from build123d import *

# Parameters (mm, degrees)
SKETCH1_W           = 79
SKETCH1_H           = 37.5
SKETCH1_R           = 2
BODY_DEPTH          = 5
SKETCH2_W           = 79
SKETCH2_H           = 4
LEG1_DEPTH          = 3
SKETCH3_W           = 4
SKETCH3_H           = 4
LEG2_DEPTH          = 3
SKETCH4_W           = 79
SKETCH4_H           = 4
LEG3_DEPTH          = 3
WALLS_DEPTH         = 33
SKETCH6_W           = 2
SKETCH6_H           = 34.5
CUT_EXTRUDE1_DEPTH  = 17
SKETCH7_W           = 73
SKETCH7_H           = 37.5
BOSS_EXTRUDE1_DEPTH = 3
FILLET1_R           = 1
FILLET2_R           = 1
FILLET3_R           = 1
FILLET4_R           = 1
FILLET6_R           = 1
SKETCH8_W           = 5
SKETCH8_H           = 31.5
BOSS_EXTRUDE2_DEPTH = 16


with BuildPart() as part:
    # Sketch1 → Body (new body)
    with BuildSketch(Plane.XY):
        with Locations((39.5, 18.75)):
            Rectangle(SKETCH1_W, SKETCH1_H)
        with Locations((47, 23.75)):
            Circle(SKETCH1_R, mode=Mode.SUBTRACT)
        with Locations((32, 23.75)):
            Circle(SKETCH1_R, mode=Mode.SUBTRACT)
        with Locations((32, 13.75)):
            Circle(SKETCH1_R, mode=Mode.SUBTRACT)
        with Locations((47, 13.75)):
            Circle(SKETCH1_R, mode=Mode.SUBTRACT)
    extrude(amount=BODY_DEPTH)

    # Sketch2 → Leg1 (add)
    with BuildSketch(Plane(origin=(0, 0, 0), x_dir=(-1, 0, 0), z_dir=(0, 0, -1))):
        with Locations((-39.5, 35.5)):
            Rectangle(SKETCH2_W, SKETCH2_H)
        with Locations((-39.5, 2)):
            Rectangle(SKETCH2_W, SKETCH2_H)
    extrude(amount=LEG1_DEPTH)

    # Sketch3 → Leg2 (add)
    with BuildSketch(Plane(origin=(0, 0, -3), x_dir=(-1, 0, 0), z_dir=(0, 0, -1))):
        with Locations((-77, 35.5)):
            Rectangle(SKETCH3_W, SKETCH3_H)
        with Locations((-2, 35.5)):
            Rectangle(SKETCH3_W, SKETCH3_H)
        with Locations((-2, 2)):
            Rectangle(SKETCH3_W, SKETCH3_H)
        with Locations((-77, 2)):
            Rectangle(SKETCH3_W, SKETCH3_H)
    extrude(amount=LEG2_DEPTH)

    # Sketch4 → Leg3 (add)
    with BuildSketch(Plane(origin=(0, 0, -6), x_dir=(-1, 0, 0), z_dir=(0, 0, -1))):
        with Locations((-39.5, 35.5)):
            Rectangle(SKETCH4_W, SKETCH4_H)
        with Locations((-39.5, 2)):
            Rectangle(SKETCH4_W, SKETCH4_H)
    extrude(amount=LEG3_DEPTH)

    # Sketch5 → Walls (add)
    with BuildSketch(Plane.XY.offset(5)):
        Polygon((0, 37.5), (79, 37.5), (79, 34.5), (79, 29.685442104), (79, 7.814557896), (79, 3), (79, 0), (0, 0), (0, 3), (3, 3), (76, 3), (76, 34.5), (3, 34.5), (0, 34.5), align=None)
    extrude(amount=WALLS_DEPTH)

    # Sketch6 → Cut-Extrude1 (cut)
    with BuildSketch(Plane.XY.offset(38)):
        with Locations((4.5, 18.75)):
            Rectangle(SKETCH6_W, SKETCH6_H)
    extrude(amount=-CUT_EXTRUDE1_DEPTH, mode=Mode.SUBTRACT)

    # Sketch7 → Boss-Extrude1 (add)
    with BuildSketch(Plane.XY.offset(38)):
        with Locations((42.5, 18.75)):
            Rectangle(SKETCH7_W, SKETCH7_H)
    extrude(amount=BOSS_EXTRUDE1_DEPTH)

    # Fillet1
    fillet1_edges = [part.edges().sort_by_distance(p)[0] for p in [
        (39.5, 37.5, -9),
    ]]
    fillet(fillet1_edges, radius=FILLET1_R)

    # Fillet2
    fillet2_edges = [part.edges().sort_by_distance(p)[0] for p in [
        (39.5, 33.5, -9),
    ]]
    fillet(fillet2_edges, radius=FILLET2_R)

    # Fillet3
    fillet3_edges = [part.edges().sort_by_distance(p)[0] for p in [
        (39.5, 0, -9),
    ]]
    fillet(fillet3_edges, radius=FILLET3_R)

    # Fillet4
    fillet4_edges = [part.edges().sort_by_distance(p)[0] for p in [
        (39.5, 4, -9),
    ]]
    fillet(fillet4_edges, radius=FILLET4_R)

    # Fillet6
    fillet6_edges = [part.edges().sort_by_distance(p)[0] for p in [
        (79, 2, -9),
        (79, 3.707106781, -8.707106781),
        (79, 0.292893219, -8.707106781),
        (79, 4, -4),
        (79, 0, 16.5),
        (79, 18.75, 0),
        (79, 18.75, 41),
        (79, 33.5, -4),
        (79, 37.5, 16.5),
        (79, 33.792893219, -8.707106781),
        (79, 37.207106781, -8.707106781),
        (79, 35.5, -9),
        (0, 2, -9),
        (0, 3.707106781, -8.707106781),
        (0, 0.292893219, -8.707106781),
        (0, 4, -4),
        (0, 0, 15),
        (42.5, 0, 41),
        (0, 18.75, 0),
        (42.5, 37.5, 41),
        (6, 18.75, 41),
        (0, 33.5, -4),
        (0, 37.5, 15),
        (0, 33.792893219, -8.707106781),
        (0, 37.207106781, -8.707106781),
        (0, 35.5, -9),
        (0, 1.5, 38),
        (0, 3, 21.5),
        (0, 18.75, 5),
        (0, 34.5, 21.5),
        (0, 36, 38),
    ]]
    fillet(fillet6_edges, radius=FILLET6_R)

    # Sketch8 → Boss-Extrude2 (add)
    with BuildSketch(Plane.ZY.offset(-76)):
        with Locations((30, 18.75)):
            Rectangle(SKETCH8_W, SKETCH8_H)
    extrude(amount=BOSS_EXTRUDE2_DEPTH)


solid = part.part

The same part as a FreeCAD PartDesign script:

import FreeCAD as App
import Part
import Sketcher
Q = App.Units.Quantity


def edges_at(feature, points):
    """Names of the edges that pass closest to the given points."""
    edges = feature.Shape.Edges
    near = lambda p: min(range(len(edges)), key=lambda i: edges[i].distToShape(Part.Vertex(*p))[0])
    return sorted({f"Edge{near(p) + 1}" for p in points})

doc = App.newDocument("Part")
body = doc.addObject("PartDesign::Body", "Body")

# Sketch on XY plane
sketch1 = doc.addObject("Sketcher::SketchObject", "Sketch")
body.addObject(sketch1)
sketch1.AttachmentSupport = (doc.XY_Plane, [""])
sketch1.MapMode = "FlatFace"
sketch1.addGeometry([
    Part.LineSegment(App.Vector(0, 37.5, 0), App.Vector(0, 0, 0)),  # 0
    Part.LineSegment(App.Vector(0, 0, 0), App.Vector(79, 0, 0)),  # 1
    Part.LineSegment(App.Vector(79, 0, 0), App.Vector(79, 37.5, 0)),  # 2
    Part.LineSegment(App.Vector(79, 37.5, 0), App.Vector(0, 37.5, 0)),  # 3
    Part.Circle(App.Vector(32, 13.8, 0), App.Vector(0, 0, 1), 2),  # 4
    Part.Circle(App.Vector(47, 13.8, 0), App.Vector(0, 0, 1), 2),  # 5
    Part.Circle(App.Vector(32, 23.8, 0), App.Vector(0, 0, 1), 2),  # 6
    Part.Circle(App.Vector(47, 23.8, 0), App.Vector(0, 0, 1), 2),  # 7
], False)
sketch1.addConstraint([
    Sketcher.Constraint("Coincident", 0, 2, 1, 1),
    Sketcher.Constraint("Coincident", 1, 2, 2, 1),
    Sketcher.Constraint("Coincident", 2, 2, 3, 1),
    Sketcher.Constraint("Coincident", 3, 2, 0, 1),
    Sketcher.Constraint("Vertical", 0),
    Sketcher.Constraint("Horizontal", 1),
    Sketcher.Constraint("Vertical", 2),
    Sketcher.Constraint("Horizontal", 3),
    Sketcher.Constraint("Coincident", 0, 2, -1, 1),
    Sketcher.Constraint("Equal", 4, 5),
    Sketcher.Constraint("Equal", 5, 6),
    Sketcher.Constraint("Equal", 6, 7),
    Sketcher.Constraint("Horizontal", 4, 3, 5, 3),
    Sketcher.Constraint("Horizontal", 6, 3, 7, 3),
    Sketcher.Constraint("Vertical", 4, 3, 6, 3),
    Sketcher.Constraint("Vertical", 5, 3, 7, 3),
    Sketcher.Constraint("Diameter", 4, Q("4 mm")),
    Sketcher.Constraint("DistanceX", 1, 1, 1, 2, Q("79 mm")),
    Sketcher.Constraint("DistanceY", 0, 2, 0, 1, Q("37.5 mm")),
    Sketcher.Constraint("DistanceX", -1, 1, 4, 3, Q("32 mm")),
    Sketcher.Constraint("DistanceX", -1, 1, 5, 3, Q("47 mm")),
    Sketcher.Constraint("DistanceY", 4, 3, 6, 3, Q("10 mm")),
    Sketcher.Constraint("DistanceY", -1, 1, 4, 3, Q("13.75 mm")),
])
pad1 = doc.addObject("PartDesign::Pad", "Pad")
body.addObject(pad1)
pad1.Profile = sketch1
pad1.Length = 5

# Sketch on XY plane
sketch2 = doc.addObject("Sketcher::SketchObject", "Sketch001")
body.addObject(sketch2)
sketch2.AttachmentSupport = (doc.XY_Plane, [""])
sketch2.MapMode = "FlatFace"
sketch2.addGeometry([
    Part.LineSegment(App.Vector(79, 37.5, 0), App.Vector(79, 33.5, 0)),  # 0
    Part.LineSegment(App.Vector(79, 33.5, 0), App.Vector(0, 33.5, 0)),  # 1
    Part.LineSegment(App.Vector(0, 33.5, 0), App.Vector(0, 37.5, 0)),  # 2
    Part.LineSegment(App.Vector(0, 37.5, 0), App.Vector(79, 37.5, 0)),  # 3
    Part.LineSegment(App.Vector(79, 4, 0), App.Vector(79, 0, 0)),  # 4
    Part.LineSegment(App.Vector(79, 0, 0), App.Vector(0, 0, 0)),  # 5
    Part.LineSegment(App.Vector(0, 0, 0), App.Vector(0, 4, 0)),  # 6
    Part.LineSegment(App.Vector(0, 4, 0), App.Vector(79, 4, 0)),  # 7
], False)
sketch2.addConstraint([
    Sketcher.Constraint("Coincident", 0, 2, 1, 1),
    Sketcher.Constraint("Coincident", 1, 2, 2, 1),
    Sketcher.Constraint("Coincident", 2, 2, 3, 1),
    Sketcher.Constraint("Coincident", 3, 2, 0, 1),
    Sketcher.Constraint("Coincident", 4, 2, 5, 1),
    Sketcher.Constraint("Coincident", 5, 2, 6, 1),
    Sketcher.Constraint("Coincident", 6, 2, 7, 1),
    Sketcher.Constraint("Coincident", 7, 2, 4, 1),
    Sketcher.Constraint("Vertical", 0),
    Sketcher.Constraint("Horizontal", 1),
    Sketcher.Constraint("Vertical", 2),
    Sketcher.Constraint("Horizontal", 3),
    Sketcher.Constraint("Vertical", 4),
    Sketcher.Constraint("Horizontal", 5),
    Sketcher.Constraint("Vertical", 6),
    Sketcher.Constraint("Horizontal", 7),
    Sketcher.Constraint("Coincident", 5, 2, -1, 1),
    Sketcher.Constraint("PointOnObject", 1, 2, -2),
    Sketcher.Constraint("Vertical", 3, 2, 4, 2),
    Sketcher.Constraint("Equal", 2, 4),
    Sketcher.Constraint("DistanceX", 1, 2, 1, 1, Q("79 mm")),
    Sketcher.Constraint("DistanceY", 0, 2, 0, 1, Q("4 mm")),
    Sketcher.Constraint("DistanceY", -1, 1, 0, 2, Q("33.5 mm")),
])
pad2 = doc.addObject("PartDesign::Pad", "Pad001")
body.addObject(pad2)
pad2.Profile = sketch2
pad2.Length = 3
pad2.Reversed = True

# Sketch on XY plane
sketch3 = doc.addObject("Sketcher::SketchObject", "Sketch002")
body.addObject(sketch3)
sketch3.AttachmentSupport = (doc.XY_Plane, [""])
sketch3.MapMode = "FlatFace"
sketch3.AttachmentOffset = App.Placement(App.Vector(0, 0, -3), App.Rotation())
sketch3.addGeometry([
    Part.LineSegment(App.Vector(79, 37.5, 0), App.Vector(79, 33.5, 0)),  # 0
    Part.LineSegment(App.Vector(79, 33.5, 0), App.Vector(75, 33.5, 0)),  # 1
    Part.LineSegment(App.Vector(75, 33.5, 0), App.Vector(75, 37.5, 0)),  # 2
    Part.LineSegment(App.Vector(75, 37.5, 0), App.Vector(79, 37.5, 0)),  # 3
    Part.LineSegment(App.Vector(4, 37.5, 0), App.Vector(4, 33.5, 0)),  # 4
    Part.LineSegment(App.Vector(4, 33.5, 0), App.Vector(0, 33.5, 0)),  # 5
    Part.LineSegment(App.Vector(0, 33.5, 0), App.Vector(0, 37.5, 0)),  # 6
    Part.LineSegment(App.Vector(0, 37.5, 0), App.Vector(4, 37.5, 0)),  # 7
    Part.LineSegment(App.Vector(4, 4, 0), App.Vector(4, 0, 0)),  # 8
    Part.LineSegment(App.Vector(4, 0, 0), App.Vector(0, 0, 0)),  # 9
    Part.LineSegment(App.Vector(0, 0, 0), App.Vector(0, 4, 0)),  # 10
    Part.LineSegment(App.Vector(0, 4, 0), App.Vector(4, 4, 0)),  # 11
    Part.LineSegment(App.Vector(79, 4, 0), App.Vector(79, 0, 0)),  # 12
    Part.LineSegment(App.Vector(79, 0, 0), App.Vector(75, 0, 0)),  # 13
    Part.LineSegment(App.Vector(75, 0, 0), App.Vector(75, 4, 0)),  # 14
    Part.LineSegment(App.Vector(75, 4, 0), App.Vector(79, 4, 0)),  # 15
], False)
sketch3.addConstraint([
    Sketcher.Constraint("Coincident", 0, 2, 1, 1),
    Sketcher.Constraint("Coincident", 1, 2, 2, 1),
    Sketcher.Constraint("Coincident", 2, 2, 3, 1),
    Sketcher.Constraint("Coincident", 3, 2, 0, 1),
    Sketcher.Constraint("Coincident", 4, 2, 5, 1),
    Sketcher.Constraint("Coincident", 5, 2, 6, 1),
    Sketcher.Constraint("Coincident", 6, 2, 7, 1),
    Sketcher.Constraint("Coincident", 7, 2, 4, 1),
    Sketcher.Constraint("Coincident", 8, 2, 9, 1),
    Sketcher.Constraint("Coincident", 9, 2, 10, 1),
    Sketcher.Constraint("Coincident", 10, 2, 11, 1),
    Sketcher.Constraint("Coincident", 11, 2, 8, 1),
    Sketcher.Constraint("Coincident", 12, 2, 13, 1),
    Sketcher.Constraint("Coincident", 13, 2, 14, 1),
    Sketcher.Constraint("Coincident", 14, 2, 15, 1),
    Sketcher.Constraint("Coincident", 15, 2, 12, 1),
    Sketcher.Constraint("Vertical", 0),
    Sketcher.Constraint("Horizontal", 1),
    Sketcher.Constraint("Vertical", 2),
    Sketcher.Constraint("Horizontal", 3),
    Sketcher.Constraint("Vertical", 4),
    Sketcher.Constraint("Horizontal", 5),
    Sketcher.Constraint("Vertical", 6),
    Sketcher.Constraint("Horizontal", 7),
    Sketcher.Constraint("Vertical", 8),
    Sketcher.Constraint("Horizontal", 9),
    Sketcher.Constraint("Vertical", 10),
    Sketcher.Constraint("Horizontal", 11),
    Sketcher.Constraint("Vertical", 12),
    Sketcher.Constraint("Horizontal", 13),
    Sketcher.Constraint("Vertical", 14),
    Sketcher.Constraint("Horizontal", 15),
    Sketcher.Constraint("Coincident", 9, 2, -1, 1),
    Sketcher.Constraint("PointOnObject", 5, 2, -2),
    Sketcher.Constraint("PointOnObject", 12, 2, -1),
    Sketcher.Constraint("Horizontal", 1, 2, 4, 2),
    Sketcher.Constraint("Horizontal", 3, 2, 6, 2),
    Sketcher.Constraint("Horizontal", 11, 2, 14, 2),
    Sketcher.Constraint("Vertical", 7, 2, 8, 2),
    Sketcher.Constraint("Vertical", 3, 2, 12, 2),
    Sketcher.Constraint("Vertical", 2, 2, 13, 2),
    Sketcher.Constraint("Equal", 3, 5),
    Sketcher.Constraint("Equal", 15, 0),
    Sketcher.Constraint("Equal", 6, 8),
    Sketcher.Constraint("DistanceX", 1, 2, 1, 1, Q("4 mm")),
    Sketcher.Constraint("DistanceX", -1, 1, 0, 2, Q("79 mm")),
    Sketcher.Constraint("DistanceY", -1, 1, 0, 2, Q("33.5 mm")),
])
pad3 = doc.addObject("PartDesign::Pad", "Pad002")
body.addObject(pad3)
pad3.Profile = sketch3
pad3.Length = 3
pad3.Reversed = True

# Sketch on XY plane
sketch4 = doc.addObject("Sketcher::SketchObject", "Sketch003")
body.addObject(sketch4)
sketch4.AttachmentSupport = (doc.XY_Plane, [""])
sketch4.MapMode = "FlatFace"
sketch4.AttachmentOffset = App.Placement(App.Vector(0, 0, -6), App.Rotation())
sketch4.addGeometry([
    Part.LineSegment(App.Vector(79, 37.5, 0), App.Vector(79, 33.5, 0)),  # 0
    Part.LineSegment(App.Vector(79, 33.5, 0), App.Vector(0, 33.5, 0)),  # 1
    Part.LineSegment(App.Vector(0, 33.5, 0), App.Vector(0, 37.5, 0)),  # 2
    Part.LineSegment(App.Vector(0, 37.5, 0), App.Vector(79, 37.5, 0)),  # 3
    Part.LineSegment(App.Vector(79, 4, 0), App.Vector(79, 0, 0)),  # 4
    Part.LineSegment(App.Vector(79, 0, 0), App.Vector(0, 0, 0)),  # 5
    Part.LineSegment(App.Vector(0, 0, 0), App.Vector(0, 4, 0)),  # 6
    Part.LineSegment(App.Vector(0, 4, 0), App.Vector(79, 4, 0)),  # 7
], False)
sketch4.addConstraint([
    Sketcher.Constraint("Coincident", 0, 2, 1, 1),
    Sketcher.Constraint("Coincident", 1, 2, 2, 1),
    Sketcher.Constraint("Coincident", 2, 2, 3, 1),
    Sketcher.Constraint("Coincident", 3, 2, 0, 1),
    Sketcher.Constraint("Coincident", 4, 2, 5, 1),
    Sketcher.Constraint("Coincident", 5, 2, 6, 1),
    Sketcher.Constraint("Coincident", 6, 2, 7, 1),
    Sketcher.Constraint("Coincident", 7, 2, 4, 1),
    Sketcher.Constraint("Vertical", 0),
    Sketcher.Constraint("Horizontal", 1),
    Sketcher.Constraint("Vertical", 2),
    Sketcher.Constraint("Horizontal", 3),
    Sketcher.Constraint("Vertical", 4),
    Sketcher.Constraint("Horizontal", 5),
    Sketcher.Constraint("Vertical", 6),
    Sketcher.Constraint("Horizontal", 7),
    Sketcher.Constraint("Coincident", 5, 2, -1, 1),
    Sketcher.Constraint("PointOnObject", 1, 2, -2),
    Sketcher.Constraint("Vertical", 3, 2, 4, 2),
    Sketcher.Constraint("Equal", 2, 4),
    Sketcher.Constraint("DistanceX", 1, 2, 1, 1, Q("79 mm")),
    Sketcher.Constraint("DistanceY", 0, 2, 0, 1, Q("4 mm")),
    Sketcher.Constraint("DistanceY", -1, 1, 0, 2, Q("33.5 mm")),
])
pad4 = doc.addObject("PartDesign::Pad", "Pad003")
body.addObject(pad4)
pad4.Profile = sketch4
pad4.Length = 3
pad4.Reversed = True

# Sketch on XY plane
sketch5 = doc.addObject("Sketcher::SketchObject", "Sketch004")
body.addObject(sketch5)
sketch5.AttachmentSupport = (doc.XY_Plane, [""])
sketch5.MapMode = "FlatFace"
sketch5.AttachmentOffset = App.Placement(App.Vector(0, 0, 5), App.Rotation())
sketch5.addGeometry([
    Part.LineSegment(App.Vector(79, 37.5, 0), App.Vector(0, 37.5, 0)),  # 0
    Part.LineSegment(App.Vector(0, 37.5, 0), App.Vector(0, 34.5, 0)),  # 1
    Part.LineSegment(App.Vector(0, 34.5, 0), App.Vector(76, 34.5, 0)),  # 2
    Part.LineSegment(App.Vector(76, 34.5, 0), App.Vector(76, 3, 0)),  # 3
    Part.LineSegment(App.Vector(76, 3, 0), App.Vector(0, 3, 0)),  # 4
    Part.LineSegment(App.Vector(0, 3, 0), App.Vector(0, 0, 0)),  # 5
    Part.LineSegment(App.Vector(0, 0, 0), App.Vector(79, 0, 0)),  # 6
    Part.LineSegment(App.Vector(79, 0, 0), App.Vector(79, 37.5, 0)),  # 7
], False)
sketch5.addConstraint([
    Sketcher.Constraint("Coincident", 0, 2, 1, 1),
    Sketcher.Constraint("Coincident", 1, 2, 2, 1),
    Sketcher.Constraint("Coincident", 2, 2, 3, 1),
    Sketcher.Constraint("Coincident", 3, 2, 4, 1),
    Sketcher.Constraint("Coincident", 4, 2, 5, 1),
    Sketcher.Constraint("Coincident", 5, 2, 6, 1),
    Sketcher.Constraint("Coincident", 6, 2, 7, 1),
    Sketcher.Constraint("Coincident", 7, 2, 0, 1),
    Sketcher.Constraint("Horizontal", 0),
    Sketcher.Constraint("Vertical", 1),
    Sketcher.Constraint("Horizontal", 2),
    Sketcher.Constraint("Vertical", 3),
    Sketcher.Constraint("Horizontal", 4),
    Sketcher.Constraint("Vertical", 5),
    Sketcher.Constraint("Horizontal", 6),
    Sketcher.Constraint("Vertical", 7),
    Sketcher.Constraint("Coincident", 5, 2, -1, 1),
    Sketcher.Constraint("PointOnObject", 0, 2, -2),
    Sketcher.Constraint("Equal", 1, 5),
    Sketcher.Constraint("DistanceX", 0, 2, 0, 1, Q("79 mm")),
    Sketcher.Constraint("DistanceX", 2, 1, 2, 2, Q("76 mm")),
    Sketcher.Constraint("DistanceY", 1, 2, 1, 1, Q("3 mm")),
    Sketcher.Constraint("DistanceY", 3, 2, 3, 1, Q("31.5 mm")),
])
pad5 = doc.addObject("PartDesign::Pad", "Pad004")
body.addObject(pad5)
pad5.Profile = sketch5
pad5.Length = 33

# Sketch on XY plane
sketch6 = doc.addObject("Sketcher::SketchObject", "Sketch005")
body.addObject(sketch6)
sketch6.AttachmentSupport = (doc.XY_Plane, [""])
sketch6.MapMode = "FlatFace"
sketch6.AttachmentOffset = App.Placement(App.Vector(0, 0, 38), App.Rotation())
sketch6.addGeometry([
    Part.LineSegment(App.Vector(3.5, 36, 0), App.Vector(3.5, 1.5, 0)),
    Part.LineSegment(App.Vector(3.5, 1.5, 0), App.Vector(5.5, 1.5, 0)),
    Part.LineSegment(App.Vector(5.5, 1.5, 0), App.Vector(5.5, 36, 0)),
    Part.LineSegment(App.Vector(5.5, 36, 0), App.Vector(3.5, 36, 0)),
], False)
sketch6.addConstraint([
    Sketcher.Constraint("Coincident", 0, 2, 1, 1),
    Sketcher.Constraint("Coincident", 1, 2, 2, 1),
    Sketcher.Constraint("Coincident", 2, 2, 3, 1),
    Sketcher.Constraint("Coincident", 3, 2, 0, 1),
    Sketcher.Constraint("Vertical", 0),
    Sketcher.Constraint("Horizontal", 1),
    Sketcher.Constraint("Vertical", 2),
    Sketcher.Constraint("Horizontal", 3),
    Sketcher.Constraint("DistanceX", 1, 1, 1, 2, Q("2 mm")),
    Sketcher.Constraint("DistanceY", 0, 2, 0, 1, Q("34.5 mm")),
    Sketcher.Constraint("DistanceY", -1, 1, 2, 2, Q("36 mm")),
    Sketcher.Constraint("DistanceX", -1, 1, 0, 2, Q("3.5 mm")),
])
pocket1 = doc.addObject("PartDesign::Pocket", "Pocket")
body.addObject(pocket1)
pocket1.Profile = sketch6
pocket1.Length = 17

# Sketch on XY plane
sketch7 = doc.addObject("Sketcher::SketchObject", "Sketch006")
body.addObject(sketch7)
sketch7.AttachmentSupport = (doc.XY_Plane, [""])
sketch7.MapMode = "FlatFace"
sketch7.AttachmentOffset = App.Placement(App.Vector(0, 0, 38), App.Rotation())
sketch7.addGeometry([
    Part.LineSegment(App.Vector(6, 38, 0), App.Vector(6, 0, 0)),
    Part.LineSegment(App.Vector(6, 0, 0), App.Vector(79, 0, 0)),
    Part.LineSegment(App.Vector(79, 0, 0), App.Vector(79, 38, 0)),
    Part.LineSegment(App.Vector(79, 38, 0), App.Vector(6, 38, 0)),
], False)
sketch7.addConstraint([
    Sketcher.Constraint("Coincident", 0, 2, 1, 1),
    Sketcher.Constraint("Coincident", 1, 2, 2, 1),
    Sketcher.Constraint("Coincident", 2, 2, 3, 1),
    Sketcher.Constraint("Coincident", 3, 2, 0, 1),
    Sketcher.Constraint("Vertical", 0),
    Sketcher.Constraint("Horizontal", 1),
    Sketcher.Constraint("Vertical", 2),
    Sketcher.Constraint("Horizontal", 3),
    Sketcher.Constraint("PointOnObject", 0, 2, -1),
    Sketcher.Constraint("DistanceX", 1, 1, 1, 2, Q("73 mm")),
    Sketcher.Constraint("DistanceY", 0, 2, 0, 1, Q("37.5 mm")),
    Sketcher.Constraint("DistanceX", -1, 1, 0, 2, Q("6 mm")),
])
pad6 = doc.addObject("PartDesign::Pad", "Pad005")
body.addObject(pad6)
pad6.Profile = sketch7
pad6.Length = 3
doc.recompute()

fillet = doc.addObject("PartDesign::Fillet", "Fillet")
body.addObject(fillet)
fillet.Base = (pad6, edges_at(pad6, [(39.5, 37.5, -9)]))
fillet.Radius = 1
doc.recompute()

fillet2 = doc.addObject("PartDesign::Fillet", "Fillet001")
body.addObject(fillet2)
fillet2.Base = (fillet, edges_at(fillet, [(39.5, 33.5, -9)]))
fillet2.Radius = 1
doc.recompute()

fillet3 = doc.addObject("PartDesign::Fillet", "Fillet002")
body.addObject(fillet3)
fillet3.Base = (fillet2, edges_at(fillet2, [(39.5, 0, -9)]))
fillet3.Radius = 1
doc.recompute()

fillet4 = doc.addObject("PartDesign::Fillet", "Fillet003")
body.addObject(fillet4)
fillet4.Base = (fillet3, edges_at(fillet3, [(39.5, 4, -9)]))
fillet4.Radius = 1
doc.recompute()

fillet5 = doc.addObject("PartDesign::Fillet", "Fillet004")
body.addObject(fillet5)
fillet5.Base = (fillet4, edges_at(fillet4, [
    (79, 2, -9),
    (79, 3.707, -8.707),
    (79, 0.293, -8.707),
    (79, 4, -4),
    (79, 0, 16.5),
    (79, 18.75, 0),
    (79, 18.75, 41),
    (79, 33.5, -4),
    (79, 37.5, 16.5),
    (79, 33.793, -8.707),
    (79, 37.207, -8.707),
    (79, 35.5, -9),
    (0, 2, -9),
    (0, 3.707, -8.707),
    (0, 0.293, -8.707),
    (0, 4, -4),
    (0, 0, 15),
    (42.5, 0, 41),
    (0, 18.75, 0),
    (42.5, 37.5, 41),
    (6, 18.75, 41),
    (0, 33.5, -4),
    (0, 37.5, 15),
    (0, 33.793, -8.707),
    (0, 37.207, -8.707),
    (0, 35.5, -9),
    (0, 1.5, 38),
    (0, 3, 21.5),
    (0, 18.75, 5),
    (0, 34.5, 21.5),
    (0, 36, 38),
]))
fillet5.Radius = 1

# Sketch on YZ plane
sketch8 = doc.addObject("Sketcher::SketchObject", "Sketch007")
body.addObject(sketch8)
sketch8.AttachmentSupport = (doc.YZ_Plane, [""])
sketch8.MapMode = "FlatFace"
sketch8.AttachmentOffset = App.Placement(App.Vector(0, 0, 76), App.Rotation())
sketch8.addGeometry([
    Part.LineSegment(App.Vector(34, 28, 0), App.Vector(3, 28, 0)),
    Part.LineSegment(App.Vector(3, 28, 0), App.Vector(3, 32, 0)),
    Part.LineSegment(App.Vector(3, 32, 0), App.Vector(34, 32, 0)),
    Part.LineSegment(App.Vector(34, 32, 0), App.Vector(34, 28, 0)),
], False)
sketch8.addConstraint([
    Sketcher.Constraint("Coincident", 0, 2, 1, 1),
    Sketcher.Constraint("Coincident", 1, 2, 2, 1),
    Sketcher.Constraint("Coincident", 2, 2, 3, 1),
    Sketcher.Constraint("Coincident", 3, 2, 0, 1),
    Sketcher.Constraint("Horizontal", 0),
    Sketcher.Constraint("Vertical", 1),
    Sketcher.Constraint("Horizontal", 2),
    Sketcher.Constraint("Vertical", 3),
    Sketcher.Constraint("DistanceY", 1, 1, 1, 2, Q("5 mm")),
    Sketcher.Constraint("DistanceX", 0, 2, 0, 1, Q("31.5 mm")),
    Sketcher.Constraint("DistanceX", -1, 1, 0, 2, Q("3 mm")),
    Sketcher.Constraint("DistanceY", -1, 1, 0, 2, Q("27.5 mm")),
])
pad7 = doc.addObject("PartDesign::Pad", "Pad006")
body.addObject(pad7)
pad7.Profile = sketch8
pad7.Length = 16
pad7.Reversed = True

doc.recompute()
